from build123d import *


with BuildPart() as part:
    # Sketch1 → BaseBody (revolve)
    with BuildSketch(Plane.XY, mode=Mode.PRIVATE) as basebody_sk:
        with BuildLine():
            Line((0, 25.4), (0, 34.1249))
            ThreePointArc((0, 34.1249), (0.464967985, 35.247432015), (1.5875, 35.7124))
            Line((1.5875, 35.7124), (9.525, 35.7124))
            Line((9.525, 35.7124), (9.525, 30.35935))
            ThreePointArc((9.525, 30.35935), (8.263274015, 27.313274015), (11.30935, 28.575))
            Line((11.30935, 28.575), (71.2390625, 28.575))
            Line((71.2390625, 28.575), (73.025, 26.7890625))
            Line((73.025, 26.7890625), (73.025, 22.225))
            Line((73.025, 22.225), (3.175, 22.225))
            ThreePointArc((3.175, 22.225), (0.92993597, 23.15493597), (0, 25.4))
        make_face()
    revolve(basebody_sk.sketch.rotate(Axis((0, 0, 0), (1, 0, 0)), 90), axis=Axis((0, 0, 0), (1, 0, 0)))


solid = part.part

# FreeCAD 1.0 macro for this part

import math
import FreeCAD as App
import Part
import Sketcher
Q = App.Units.Quantity

doc = App.newDocument("Part")
body = doc.addObject("PartDesign::Body", "Body")

# Sketch on XY plane
sketch1 = body.newObject("Sketcher::SketchObject", "Sketch")
sketch1.AttachmentSupport = (doc.getObject("XY_Plane"), [""])
sketch1.MapMode = "FlatFace"
sketch1.addGeometry([
    Part.LineSegment(App.Vector(0, 34.1, 0), App.Vector(0, 25.4, 0)),  # 0
    Part.ArcOfCircle(Part.Circle(App.Vector(3.2, 25.4, 0), App.Vector(0, 0, 1), 3.2), math.radians(-180), math.radians(-90)),  # 1
    Part.LineSegment(App.Vector(3.2, 22.2, 0), App.Vector(73, 22.2, 0)),  # 2
    Part.LineSegment(App.Vector(73, 22.2, 0), App.Vector(73, 26.8, 0)),  # 3
    Part.LineSegment(App.Vector(73, 26.8, 0), App.Vector(71.2, 28.6, 0)),  # 4
    Part.LineSegment(App.Vector(71.2, 28.6, 0), App.Vector(11.3, 28.6, 0)),  # 5
    Part.ArcOfCircle(Part.Circle(App.Vector(9.5, 28.6, 0), App.Vector(0, 0, 1), 1.8), math.radians(90), math.radians(360)),  # 6
    Part.LineSegment(App.Vector(9.5, 30.4, 0), App.Vector(9.5, 35.7, 0)),  # 7
    Part.LineSegment(App.Vector(9.5, 35.7, 0), App.Vector(1.6, 35.7, 0)),  # 8
    Part.ArcOfCircle(Part.Circle(App.Vector(1.6, 34.1, 0), App.Vector(0, 0, 1), 1.6), math.radians(90), math.radians(180)),  # 9
], False)
sketch1.addConstraint([
    Sketcher.Constraint("Tangent", 0, 2, 1, 1),
    Sketcher.Constraint("Tangent", 1, 2, 2, 1),
    Sketcher.Constraint("Coincident", 2, 2, 3, 1),
    Sketcher.Constraint("Coincident", 3, 2, 4, 1),
    Sketcher.Constraint("Coincident", 4, 2, 5, 1),
    Sketcher.Constraint("Coincident", 5, 2, 6, 2),
    Sketcher.Constraint("Coincident", 6, 1, 7, 1),
    Sketcher.Constraint("Coincident", 7, 2, 8, 1),
    Sketcher.Constraint("Tangent", 8, 2, 9, 1),
    Sketcher.Constraint("Tangent", 9, 2, 0, 1),
    Sketcher.Constraint("Vertical", 0),
    Sketcher.Constraint("Horizontal", 2),
    Sketcher.Constraint("Vertical", 3),
    Sketcher.Constraint("Horizontal", 5),
    Sketcher.Constraint("Vertical", 7),
    Sketcher.Constraint("Horizontal", 8),
    Sketcher.Constraint("PointOnObject", 0, 2, -2),
    Sketcher.Constraint("Horizontal", 6, 3, 4, 2),
    Sketcher.Constraint("DistanceY", -1, 1, 1, 3, Q("1 in")),
    Sketcher.Constraint("Angle", 4, Q("135 deg")),
    Sketcher.Constraint("Radius", 1, Q("0.125 in")),
    Sketcher.Constraint("Radius", 9, Q("0.0625 in")),
    Sketcher.Constraint("DistanceX", 2, 1, 2, 2, Q("2.75 in")),
    Sketcher.Constraint("DistanceX", 6, 3, 2, 2, Q("2.5 in")),
    Sketcher.Constraint("DistanceX", 8, 2, 8, 1, Q("0.3125 in")),
    Sketcher.Constraint("DistanceY", 1, 2, 6, 3, Q("0.25 in")),
    Sketcher.Constraint("DistanceY", 0, 2, 0, 1, Q("0.3435 in")),
    Sketcher.Constraint("Radius", 6, 1.78435),
    Sketcher.Constraint("DistanceX", 5, 2, 5, 1, 59.929713),
])
revolution = body.newObject("PartDesign::Revolution", "Revolution")
revolution.Profile = sketch1
revolution.ReferenceAxis = (sketch1, ["H_Axis"])
revolution.Angle = 360

doc.recompute()
